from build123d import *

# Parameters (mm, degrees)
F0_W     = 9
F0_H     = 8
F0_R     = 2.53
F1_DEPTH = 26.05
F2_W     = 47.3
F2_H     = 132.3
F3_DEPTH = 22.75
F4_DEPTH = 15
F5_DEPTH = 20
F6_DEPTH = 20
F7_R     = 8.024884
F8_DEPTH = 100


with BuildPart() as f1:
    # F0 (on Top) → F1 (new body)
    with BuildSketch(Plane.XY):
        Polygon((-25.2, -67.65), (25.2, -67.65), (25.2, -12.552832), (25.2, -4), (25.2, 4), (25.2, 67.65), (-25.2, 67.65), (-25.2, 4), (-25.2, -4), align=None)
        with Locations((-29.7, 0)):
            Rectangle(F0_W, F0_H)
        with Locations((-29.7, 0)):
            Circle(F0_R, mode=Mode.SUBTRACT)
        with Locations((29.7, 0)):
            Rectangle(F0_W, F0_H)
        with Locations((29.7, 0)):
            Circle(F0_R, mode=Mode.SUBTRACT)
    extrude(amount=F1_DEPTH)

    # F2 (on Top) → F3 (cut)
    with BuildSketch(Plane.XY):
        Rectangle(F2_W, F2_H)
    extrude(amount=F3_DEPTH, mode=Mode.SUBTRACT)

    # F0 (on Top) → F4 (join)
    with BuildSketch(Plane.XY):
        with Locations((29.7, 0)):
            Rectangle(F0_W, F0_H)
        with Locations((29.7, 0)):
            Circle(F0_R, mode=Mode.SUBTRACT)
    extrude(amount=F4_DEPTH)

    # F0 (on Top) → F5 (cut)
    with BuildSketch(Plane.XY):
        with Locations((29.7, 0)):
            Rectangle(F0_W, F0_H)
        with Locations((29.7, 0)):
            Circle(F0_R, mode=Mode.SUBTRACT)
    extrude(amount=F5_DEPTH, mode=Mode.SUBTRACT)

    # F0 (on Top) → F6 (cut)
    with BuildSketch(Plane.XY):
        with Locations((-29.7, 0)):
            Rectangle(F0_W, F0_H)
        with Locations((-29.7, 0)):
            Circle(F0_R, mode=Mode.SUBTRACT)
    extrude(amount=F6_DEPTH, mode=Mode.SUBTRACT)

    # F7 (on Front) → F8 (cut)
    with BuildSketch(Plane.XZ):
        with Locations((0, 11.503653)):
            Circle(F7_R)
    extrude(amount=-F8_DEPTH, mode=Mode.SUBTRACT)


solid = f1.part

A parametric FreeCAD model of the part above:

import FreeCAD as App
import Part
import Sketcher

doc = App.newDocument("Part")
body = doc.addObject("PartDesign::Body", "Body")

sketch1 = body.newObject("Sketcher::SketchObject", "Sketch")
sketch1.AttachmentSupport = (doc.getObject("XY_Plane"), [""])
sketch1.MapMode = "FlatFace"
sketch1.addGeometry([
    Part.LineSegment(App.Vector(-25.2, -67.7, 0), App.Vector(25.2, -67.7, 0)),
    Part.LineSegment(App.Vector(25.2, -67.7, 0), App.Vector(25.2, -4, 0)),
    Part.LineSegment(App.Vector(25.2, -4, 0), App.Vector(34.2, -4, 0)),
    Part.LineSegment(App.Vector(34.2, -4, 0), App.Vector(34.2, 4, 0)),
    Part.LineSegment(App.Vector(34.2, 4, 0), App.Vector(25.2, 4, 0)),
    Part.LineSegment(App.Vector(25.2, 4, 0), App.Vector(25.2, 67.7, 0)),
    Part.LineSegment(App.Vector(25.2, 67.7, 0), App.Vector(-25.2, 67.7, 0)),
    Part.LineSegment(App.Vector(-25.2, 67.7, 0), App.Vector(-25.2, 4, 0)),
    Part.LineSegment(App.Vector(-25.2, 4, 0), App.Vector(-34.2, 4, 0)),
    Part.LineSegment(App.Vector(-34.2, 4, 0), App.Vector(-34.2, -4, 0)),
    Part.LineSegment(App.Vector(-34.2, -4, 0), App.Vector(-25.2, -4, 0)),
    Part.LineSegment(App.Vector(-25.2, -4, 0), App.Vector(-25.2, -67.7, 0)),
    Part.Circle(App.Vector(-29.7, 0, 0), App.Vector(0, 0, 1), 2.5),
    Part.Circle(App.Vector(29.7, 0, 0), App.Vector(0, 0, 1), 2.5),
], False)
sketch1.addConstraint([
    Sketcher.Constraint("Coincident", 0, 2, 1, 1),
    Sketcher.Constraint("Coincident", 1, 2, 2, 1),
    Sketcher.Constraint("Coincident", 2, 2, 3, 1),
    Sketcher.Constraint("Coincident", 3, 2, 4, 1),
    Sketcher.Constraint("Coincident", 4, 2, 5, 1),
    Sketcher.Constraint("Coincident", 5, 2, 6, 1),
    Sketcher.Constraint("Coincident", 6, 2, 7, 1),
    Sketcher.Constraint("Coincident", 7, 2, 8, 1),
    Sketcher.Constraint("Coincident", 8, 2, 9, 1),
    Sketcher.Constraint("Coincident", 9, 2, 10, 1),
    Sketcher.Constraint("Coincident", 10, 2, 11, 1),
    Sketcher.Constraint("Coincident", 11, 2, 0, 1),
    Sketcher.Constraint("Horizontal", 0),
    Sketcher.Constraint("Vertical", 1),
    Sketcher.Constraint("Horizontal", 2),
    Sketcher.Constraint("Vertical", 3),
    Sketcher.Constraint("Horizontal", 4),
    Sketcher.Constraint("Vertical", 5),
    Sketcher.Constraint("Horizontal", 6),
    Sketcher.Constraint("Vertical", 7),
    Sketcher.Constraint("Horizontal", 8),
    Sketcher.Constraint("Vertical", 9),
    Sketcher.Constraint("Horizontal", 10),
    Sketcher.Constraint("Vertical", 11),
    Sketcher.Constraint("Equal", 12, 13),
    Sketcher.Constraint("Symmetric", 12, 3, 13, 3, -1, 1),
    Sketcher.Constraint("Symmetric", 0, 2, 6, 2, -1, 1),
    Sketcher.Constraint("Symmetric", 2, 2, 8, 2, -1, 1),
    Sketcher.Constraint("Symmetric", 4, 2, 10, 2, -1, 1),
    Sketcher.Constraint("Symmetric", 4, 2, 7, 2, -2),
    Sketcher.Constraint("PointOnObject", 12, 3, -1),
    Sketcher.Constraint("Diameter", 12, 5.06),
    Sketcher.Constraint("DistanceX", 2, 1, 2, 2, 9.0),
    Sketcher.Constraint("DistanceY", 3, 1, 3, 2, 8.0),
    Sketcher.Constraint("DistanceX", 0, 1, 0, 2, 50.4),
    Sketcher.Constraint("DistanceY", 1, 1, 1, 2, 63.65),
    Sketcher.Constraint("DistanceX", 12, 3, -1, 1, 29.7),
])
pad1 = body.newObject("PartDesign::Pad", "Pad")
pad1.Profile = sketch1
pad1.Length = 26.05

sketch2 = body.newObject("Sketcher::SketchObject", "Sketch001")
sketch2.AttachmentSupport = (doc.getObject("XY_Plane"), [""])
sketch2.MapMode = "FlatFace"
sketch2.addGeometry([
    Part.LineSegment(App.Vector(-24, 66, 0), App.Vector(-24, -66, 0)),
    Part.LineSegment(App.Vector(-24, -66, 0), App.Vector(24, -66, 0)),
    Part.LineSegment(App.Vector(24, -66, 0), App.Vector(24, 66, 0)),
    Part.LineSegment(App.Vector(24, 66, 0), App.Vector(-24, 66, 0)),
], False)
sketch2.addConstraint([
    Sketcher.Constraint("Coincident", 0, 2, 1, 1),
    Sketcher.Constraint("Coincident", 1, 2, 2, 1),
    Sketcher.Constraint("Coincident", 2, 2, 3, 1),
    Sketcher.Constraint("Coincident", 3, 2, 0, 1),
    Sketcher.Constraint("Vertical", 0),
    Sketcher.Constraint("Horizontal", 1),
    Sketcher.Constraint("Vertical", 2),
    Sketcher.Constraint("Horizontal", 3),
    Sketcher.Constraint("Symmetric", 0, 2, 2, 2, -1, 1),
    Sketcher.Constraint("DistanceX", 1, 1, 1, 2, 47.3),
    Sketcher.Constraint("DistanceY", 0, 2, 0, 1, 132.3),
])
pocket1 = body.newObject("PartDesign::Pocket", "Pocket")
pocket1.Profile = sketch2
pocket1.Length = 22.75
pocket1.Reversed = True

sketch3 = body.newObject("Sketcher::SketchObject", "Sketch002")
sketch3.AttachmentSupport = (doc.getObject("XY_Plane"), [""])
sketch3.MapMode = "FlatFace"
sketch3.addGeometry([
    Part.LineSegment(App.Vector(25.2, 4, 0), App.Vector(25.2, -4, 0)),
    Part.LineSegment(App.Vector(25.2, -4, 0), App.Vector(34.2, -4, 0)),
    Part.LineSegment(App.Vector(34.2, -4, 0), App.Vector(34.2, 4, 0)),
    Part.LineSegment(App.Vector(34.2, 4, 0), App.Vector(25.2, 4, 0)),
    Part.Circle(App.Vector(29.7, 0, 0), App.Vector(0, 0, 1), 2.5),
], False)
sketch3.addConstraint([
    Sketcher.Constraint("Coincident", 0, 2, 1, 1),
    Sketcher.Constraint("Coincident", 1, 2, 2, 1),
    Sketcher.Constraint("Coincident", 2, 2, 3, 1),
    Sketcher.Constraint("Coincident", 3, 2, 0, 1),
    Sketcher.Constraint("Vertical", 0),
    Sketcher.Constraint("Horizontal", 1),
    Sketcher.Constraint("Vertical", 2),
    Sketcher.Constraint("Horizontal", 3),
    Sketcher.Constraint("PointOnObject", 4, 3, -1),
    Sketcher.Constraint("Diameter", 4, 5.06),
    Sketcher.Constraint("DistanceX", 1, 1, 1, 2, 9.0),
    Sketcher.Constraint("DistanceY", 0, 2, 0, 1, 8.0),
    Sketcher.Constraint("DistanceY", 0, 2, -1, 1, 4.0),
    Sketcher.Constraint("DistanceX", -1, 1, 4, 3, 29.7),
    Sketcher.Constraint("DistanceX", -1, 1, 0, 2, 25.2),
])
pad2 = body.newObject("PartDesign::Pad", "Pad001")
pad2.Profile = sketch3
pad2.Length = 15

sketch4 = body.newObject("Sketcher::SketchObject", "Sketch003")
sketch4.AttachmentSupport = (doc.getObject("XY_Plane"), [""])
sketch4.MapMode = "FlatFace"
sketch4.addGeometry([
    Part.LineSegment(App.Vector(25.2, 4, 0), App.Vector(25.2, -4, 0)),
    Part.LineSegment(App.Vector(25.2, -4, 0), App.Vector(34.2, -4, 0)),
    Part.LineSegment(App.Vector(34.2, -4, 0), App.Vector(34.2, 4, 0)),
    Part.LineSegment(App.Vector(34.2, 4, 0), App.Vector(25.2, 4, 0)),
    Part.Circle(App.Vector(29.7, 0, 0), App.Vector(0, 0, 1), 2.5),
], False)
sketch4.addConstraint([
    Sketcher.Constraint("Coincident", 0, 2, 1, 1),
    Sketcher.Constraint("Coincident", 1, 2, 2, 1),
    Sketcher.Constraint("Coincident", 2, 2, 3, 1),
    Sketcher.Constraint("Coincident", 3, 2, 0, 1),
    Sketcher.Constraint("Vertical", 0),
    Sketcher.Constraint("Horizontal", 1),
    Sketcher.Constraint("Vertical", 2),
    Sketcher.Constraint("Horizontal", 3),
    Sketcher.Constraint("PointOnObject", 4, 3, -1),
    Sketcher.Constraint("Diameter", 4, 5.06),
    Sketcher.Constraint("DistanceX", 1, 1, 1, 2, 9.0),
    Sketcher.Constraint("DistanceY", 0, 2, 0, 1, 8.0),
    Sketcher.Constraint("DistanceY", 0, 2, -1, 1, 4.0),
    Sketcher.Constraint("DistanceX", -1, 1, 4, 3, 29.7),
    Sketcher.Constraint("DistanceX", -1, 1, 0, 2, 25.2),
])
pocket2 = body.newObject("PartDesign::Pocket", "Pocket001")
pocket2.Profile = sketch4
pocket2.Length = 20
pocket2.Reversed = True

sketch5 = body.newObject("Sketcher::SketchObject", "Sketch004")
sketch5.AttachmentSupport = (doc.getObject("XY_Plane"), [""])
sketch5.MapMode = "FlatFace"
sketch5.addGeometry([
    Part.LineSegment(App.Vector(-34.2, 4, 0), App.Vector(-34.2, -4, 0)),
    Part.LineSegment(App.Vector(-34.2, -4, 0), App.Vector(-25.2, -4, 0)),
    Part.LineSegment(App.Vector(-25.2, -4, 0), App.Vector(-25.2, 4, 0)),
    Part.LineSegment(App.Vector(-25.2, 4, 0), App.Vector(-34.2, 4, 0)),
    Part.Circle(App.Vector(-29.7, 0, 0), App.Vector(0, 0, 1), 2.5),
], False)
sketch5.addConstraint([
    Sketcher.Constraint("Coincident", 0, 2, 1, 1),
    Sketcher.Constraint("Coincident", 1, 2, 2, 1),
    Sketcher.Constraint("Coincident", 2, 2, 3, 1),
    Sketcher.Constraint("Coincident", 3, 2, 0, 1),
    Sketcher.Constraint("Vertical", 0),
    Sketcher.Constraint("Horizontal", 1),
    Sketcher.Constraint("Vertical", 2),
    Sketcher.Constraint("Horizontal", 3),
    Sketcher.Constraint("PointOnObject", 4, 3, -1),
    Sketcher.Constraint("Diameter", 4, 5.06),
    Sketcher.Constraint("DistanceX", 1, 1, 1, 2, 9.0),
    Sketcher.Constraint("DistanceY", 0, 2, 0, 1, 8.0),
    Sketcher.Constraint("DistanceY", 0, 2, -1, 1, 4.0),
    Sketcher.Constraint("DistanceX", 4, 3, -1, 1, 29.7),
    Sketcher.Constraint("DistanceX", 0, 2, -1, 1, 34.2),
])
pocket3 = body.newObject("PartDesign::Pocket", "Pocket002")
pocket3.Profile = sketch5
pocket3.Length = 20
pocket3.Reversed = True

sketch6 = body.newObject("Sketcher::SketchObject", "Sketch005")
sketch6.AttachmentSupport = (doc.getObject("XZ_Plane"), [""])
sketch6.MapMode = "FlatFace"
sketch6.addGeometry(Part.Circle(App.Vector(0, 12, 0), App.Vector(0, 0, 1), 8), False)
sketch6.addConstraint([
    Sketcher.Constraint("PointOnObject", 0, 3, -2),
    Sketcher.Constraint("Diameter", 0, 16.049768),
    Sketcher.Constraint("DistanceY", -1, 1, 0, 3, 11.503653),
])
pocket4 = body.newObject("PartDesign::Pocket", "Pocket003")
pocket4.Profile = sketch6
pocket4.Length = 100

doc.recompute()
